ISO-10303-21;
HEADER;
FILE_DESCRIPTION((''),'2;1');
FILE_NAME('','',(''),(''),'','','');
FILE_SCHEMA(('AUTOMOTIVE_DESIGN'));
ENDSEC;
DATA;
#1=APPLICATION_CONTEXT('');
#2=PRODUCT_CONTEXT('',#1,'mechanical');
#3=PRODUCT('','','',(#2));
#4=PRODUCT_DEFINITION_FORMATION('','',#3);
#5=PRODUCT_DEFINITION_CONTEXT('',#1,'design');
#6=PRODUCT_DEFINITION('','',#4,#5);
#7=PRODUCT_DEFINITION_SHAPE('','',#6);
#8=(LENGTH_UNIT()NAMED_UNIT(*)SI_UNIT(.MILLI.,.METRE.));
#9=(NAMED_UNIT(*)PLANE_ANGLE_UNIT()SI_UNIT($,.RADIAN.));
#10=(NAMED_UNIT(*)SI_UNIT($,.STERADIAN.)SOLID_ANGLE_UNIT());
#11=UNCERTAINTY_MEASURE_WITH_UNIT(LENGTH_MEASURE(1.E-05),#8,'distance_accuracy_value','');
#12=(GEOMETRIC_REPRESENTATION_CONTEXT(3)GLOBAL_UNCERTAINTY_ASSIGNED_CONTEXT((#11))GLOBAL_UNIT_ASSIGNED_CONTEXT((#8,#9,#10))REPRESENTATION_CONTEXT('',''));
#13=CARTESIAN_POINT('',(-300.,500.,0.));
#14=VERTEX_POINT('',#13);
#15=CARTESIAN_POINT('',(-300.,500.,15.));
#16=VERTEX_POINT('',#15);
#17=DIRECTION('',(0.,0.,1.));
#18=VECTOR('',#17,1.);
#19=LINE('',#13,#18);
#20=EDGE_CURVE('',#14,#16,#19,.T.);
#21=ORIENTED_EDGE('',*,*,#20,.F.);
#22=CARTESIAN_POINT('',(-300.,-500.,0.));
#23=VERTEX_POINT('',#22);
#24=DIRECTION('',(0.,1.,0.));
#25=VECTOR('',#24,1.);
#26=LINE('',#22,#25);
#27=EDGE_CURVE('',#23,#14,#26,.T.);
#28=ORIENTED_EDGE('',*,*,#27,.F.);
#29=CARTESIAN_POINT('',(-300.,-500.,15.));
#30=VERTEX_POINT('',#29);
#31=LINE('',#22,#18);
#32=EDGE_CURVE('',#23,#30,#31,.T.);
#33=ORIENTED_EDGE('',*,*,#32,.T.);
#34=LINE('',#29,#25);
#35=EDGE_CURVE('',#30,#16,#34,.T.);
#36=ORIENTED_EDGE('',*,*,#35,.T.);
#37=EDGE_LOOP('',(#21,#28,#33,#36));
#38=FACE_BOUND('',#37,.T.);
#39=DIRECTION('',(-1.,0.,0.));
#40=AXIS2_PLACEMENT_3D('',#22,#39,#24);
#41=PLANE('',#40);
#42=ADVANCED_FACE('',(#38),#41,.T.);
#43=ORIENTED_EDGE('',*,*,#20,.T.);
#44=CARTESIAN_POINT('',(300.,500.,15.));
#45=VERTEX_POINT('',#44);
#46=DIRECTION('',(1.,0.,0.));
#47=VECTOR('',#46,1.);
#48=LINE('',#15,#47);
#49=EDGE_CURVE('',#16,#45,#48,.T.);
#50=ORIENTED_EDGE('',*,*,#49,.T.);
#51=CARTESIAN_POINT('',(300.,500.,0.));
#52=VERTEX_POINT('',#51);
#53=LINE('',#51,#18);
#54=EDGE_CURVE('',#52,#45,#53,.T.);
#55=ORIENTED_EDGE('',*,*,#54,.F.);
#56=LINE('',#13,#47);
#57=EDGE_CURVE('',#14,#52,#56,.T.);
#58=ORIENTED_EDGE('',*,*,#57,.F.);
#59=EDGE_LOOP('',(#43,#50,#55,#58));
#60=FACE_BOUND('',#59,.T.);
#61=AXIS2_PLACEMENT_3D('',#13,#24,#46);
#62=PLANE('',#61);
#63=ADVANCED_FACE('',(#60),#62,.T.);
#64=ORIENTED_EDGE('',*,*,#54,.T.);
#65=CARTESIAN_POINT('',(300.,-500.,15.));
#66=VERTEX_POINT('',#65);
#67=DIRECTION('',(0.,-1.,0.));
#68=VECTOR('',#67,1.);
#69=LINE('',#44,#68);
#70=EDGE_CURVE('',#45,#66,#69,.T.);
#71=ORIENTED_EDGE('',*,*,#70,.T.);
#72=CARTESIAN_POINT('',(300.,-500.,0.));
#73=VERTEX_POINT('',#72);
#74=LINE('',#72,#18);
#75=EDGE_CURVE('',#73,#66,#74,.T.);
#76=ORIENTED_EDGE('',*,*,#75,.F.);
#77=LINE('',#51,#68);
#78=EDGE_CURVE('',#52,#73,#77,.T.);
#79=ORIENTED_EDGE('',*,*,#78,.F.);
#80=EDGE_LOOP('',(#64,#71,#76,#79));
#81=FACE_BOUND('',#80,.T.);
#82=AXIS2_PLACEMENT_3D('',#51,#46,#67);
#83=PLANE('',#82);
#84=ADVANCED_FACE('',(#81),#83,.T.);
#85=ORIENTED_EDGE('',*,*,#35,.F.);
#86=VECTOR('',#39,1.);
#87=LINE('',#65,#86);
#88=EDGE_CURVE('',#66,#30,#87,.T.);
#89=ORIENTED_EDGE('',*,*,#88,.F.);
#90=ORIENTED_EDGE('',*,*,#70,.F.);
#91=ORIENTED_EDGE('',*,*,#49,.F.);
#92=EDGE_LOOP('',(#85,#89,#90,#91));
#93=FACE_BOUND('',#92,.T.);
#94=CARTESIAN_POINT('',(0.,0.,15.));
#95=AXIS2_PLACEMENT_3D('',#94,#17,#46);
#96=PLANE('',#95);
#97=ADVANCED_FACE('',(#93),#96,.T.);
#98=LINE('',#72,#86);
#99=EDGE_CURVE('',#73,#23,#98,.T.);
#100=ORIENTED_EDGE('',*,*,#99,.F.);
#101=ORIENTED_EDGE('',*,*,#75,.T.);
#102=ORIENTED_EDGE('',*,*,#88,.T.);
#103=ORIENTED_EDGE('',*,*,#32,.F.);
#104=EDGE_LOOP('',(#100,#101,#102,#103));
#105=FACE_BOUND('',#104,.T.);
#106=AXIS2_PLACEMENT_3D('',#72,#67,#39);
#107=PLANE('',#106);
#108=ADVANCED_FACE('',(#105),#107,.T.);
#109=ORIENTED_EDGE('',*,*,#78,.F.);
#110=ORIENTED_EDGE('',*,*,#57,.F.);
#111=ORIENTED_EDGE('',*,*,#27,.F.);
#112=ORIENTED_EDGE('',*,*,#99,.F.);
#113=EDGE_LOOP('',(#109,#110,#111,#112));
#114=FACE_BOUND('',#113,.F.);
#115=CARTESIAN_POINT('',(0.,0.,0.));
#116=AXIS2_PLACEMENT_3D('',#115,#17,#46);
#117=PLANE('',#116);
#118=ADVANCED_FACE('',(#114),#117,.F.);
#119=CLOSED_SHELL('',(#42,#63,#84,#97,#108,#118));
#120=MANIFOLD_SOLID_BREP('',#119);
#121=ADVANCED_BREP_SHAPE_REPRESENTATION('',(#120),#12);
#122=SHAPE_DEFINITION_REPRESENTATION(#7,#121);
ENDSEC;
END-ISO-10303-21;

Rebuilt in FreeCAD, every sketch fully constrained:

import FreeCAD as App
import Part
import Sketcher
Q = App.Units.Quantity

doc = App.newDocument("Part")
body = doc.addObject("PartDesign::Body", "Body")

# Sketch on XY plane
sketch1 = body.newObject("Sketcher::SketchObject", "Sketch")
sketch1.AttachmentSupport = (doc.getObject("XY_Plane"), [""])
sketch1.MapMode = "FlatFace"
sketch1.addGeometry(Part.LineSegment(App.Vector(300, 500, 0), App.Vector(-300, 500, 0)), False)
sketch1.addGeometry(Part.LineSegment(App.Vector(-300, 500, 0), App.Vector(-300, -500, 0)), False)
sketch1.addGeometry(Part.LineSegment(App.Vector(-300, -500, 0), App.Vector(300, -500, 0)), False)
sketch1.addGeometry(Part.LineSegment(App.Vector(300, -500, 0), App.Vector(300, 500, 0)), False)
sketch1.addConstraint(Sketcher.Constraint("Coincident", 0, 2, 1, 1))
sketch1.addConstraint(Sketcher.Constraint("Coincident", 1, 2, 2, 1))
sketch1.addConstraint(Sketcher.Constraint("Coincident", 2, 2, 3, 1))
sketch1.addConstraint(Sketcher.Constraint("Coincident", 3, 2, 0, 1))
sketch1.addConstraint(Sketcher.Constraint("Horizontal", 0))
sketch1.addConstraint(Sketcher.Constraint("Vertical", 1))
sketch1.addConstraint(Sketcher.Constraint("Horizontal", 2))
sketch1.addConstraint(Sketcher.Constraint("Vertical", 3))
sketch1.addConstraint(Sketcher.Constraint("Symmetric", 0, 2, 2, 2, -1, 1))
sketch1.addConstraint(Sketcher.Constraint("DistanceX", 0, 2, 0, 1, Q("600 mm")))
sketch1.addConstraint(Sketcher.Constraint("DistanceY", 1, 2, 1, 1, Q("1000 mm")))
pad1 = body.newObject("PartDesign::Pad", "Pad")
pad1.Profile = sketch1
pad1.Length = 15

doc.recompute()
